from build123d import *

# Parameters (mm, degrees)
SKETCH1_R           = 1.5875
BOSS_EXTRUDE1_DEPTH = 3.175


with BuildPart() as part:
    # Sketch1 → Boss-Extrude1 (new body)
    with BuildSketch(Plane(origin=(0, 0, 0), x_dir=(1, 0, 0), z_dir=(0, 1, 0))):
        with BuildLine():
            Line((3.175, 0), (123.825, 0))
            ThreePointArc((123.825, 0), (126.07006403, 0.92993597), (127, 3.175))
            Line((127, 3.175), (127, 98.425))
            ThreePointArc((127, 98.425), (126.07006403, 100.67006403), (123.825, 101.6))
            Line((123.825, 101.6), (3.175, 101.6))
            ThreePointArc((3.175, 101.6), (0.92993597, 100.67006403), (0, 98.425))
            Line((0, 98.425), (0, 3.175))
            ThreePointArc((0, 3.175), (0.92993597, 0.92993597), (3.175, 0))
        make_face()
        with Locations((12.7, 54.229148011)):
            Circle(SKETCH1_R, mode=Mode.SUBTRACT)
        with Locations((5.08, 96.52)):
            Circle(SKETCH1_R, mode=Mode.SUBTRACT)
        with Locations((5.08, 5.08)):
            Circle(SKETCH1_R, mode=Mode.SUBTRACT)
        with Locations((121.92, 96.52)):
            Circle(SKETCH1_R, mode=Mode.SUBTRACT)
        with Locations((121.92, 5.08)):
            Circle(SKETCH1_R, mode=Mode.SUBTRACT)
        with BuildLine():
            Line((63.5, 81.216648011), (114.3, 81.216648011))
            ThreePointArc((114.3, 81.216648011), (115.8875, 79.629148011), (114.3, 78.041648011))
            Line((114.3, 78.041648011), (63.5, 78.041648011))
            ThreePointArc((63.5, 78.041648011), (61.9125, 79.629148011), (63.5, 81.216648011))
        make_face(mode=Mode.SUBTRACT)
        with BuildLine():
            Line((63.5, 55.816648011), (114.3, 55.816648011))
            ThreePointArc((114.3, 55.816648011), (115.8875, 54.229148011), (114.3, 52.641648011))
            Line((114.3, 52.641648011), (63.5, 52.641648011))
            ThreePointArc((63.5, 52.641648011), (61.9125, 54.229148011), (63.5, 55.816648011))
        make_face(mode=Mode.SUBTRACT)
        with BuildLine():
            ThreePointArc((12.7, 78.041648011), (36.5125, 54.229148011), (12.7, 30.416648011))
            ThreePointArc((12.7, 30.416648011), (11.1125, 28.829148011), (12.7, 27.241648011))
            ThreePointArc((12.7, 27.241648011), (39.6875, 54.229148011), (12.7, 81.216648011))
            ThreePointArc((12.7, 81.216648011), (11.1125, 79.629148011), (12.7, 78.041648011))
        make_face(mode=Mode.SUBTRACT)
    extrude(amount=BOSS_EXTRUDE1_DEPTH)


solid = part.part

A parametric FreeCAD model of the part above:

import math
import FreeCAD as App
import Part
import Sketcher
Q = App.Units.Quantity

doc = App.newDocument("Part")
body = doc.addObject("PartDesign::Body", "Body")

# Sketch on XZ plane
sketch1 = body.newObject("Sketcher::SketchObject", "Sketch")
sketch1.AttachmentSupport = (doc.getObject("XZ_Plane"), [""])
sketch1.MapMode = "FlatFace"
sketch1.addGeometry([
    Part.LineSegment(App.Vector(3.2, 0, 0), App.Vector(123.8, 0, 0)),  # 0
    Part.ArcOfCircle(Part.Circle(App.Vector(123.8, -3.2, 0), App.Vector(0, 0, 1), 3.2), math.radians(0), math.radians(90)),  # 1
    Part.LineSegment(App.Vector(127, -3.2, 0), App.Vector(127, -98.4, 0)),  # 2
    Part.ArcOfCircle(Part.Circle(App.Vector(123.8, -98.4, 0), App.Vector(0, 0, 1), 3.2), math.radians(-90), math.radians(0)),  # 3
    Part.LineSegment(App.Vector(123.8, -101.6, 0), App.Vector(3.2, -101.6, 0)),  # 4
    Part.ArcOfCircle(Part.Circle(App.Vector(3.2, -98.4, 0), App.Vector(0, 0, 1), 3.2), math.radians(-180), math.radians(-90)),  # 5
    Part.LineSegment(App.Vector(0, -98.4, 0), App.Vector(0, -3.2, 0)),  # 6
    Part.ArcOfCircle(Part.Circle(App.Vector(3.2, -3.2, 0), App.Vector(0, 0, 1), 3.2), math.radians(90), math.radians(180)),  # 7
    Part.Circle(App.Vector(5.1, -5.1, 0), App.Vector(0, 0, 1), 1.6),  # 8
    Part.Circle(App.Vector(121.9, -5.1, 0), App.Vector(0, 0, 1), 1.6),  # 9
    Part.Circle(App.Vector(12.7, -54.2, 0), App.Vector(0, 0, 1), 1.6),  # 10
    Part.ArcOfCircle(Part.Circle(App.Vector(12.7, -54.2, 0), App.Vector(0, 0, 1), 23.8), math.radians(-90), math.radians(90)),  # 11
    Part.ArcOfCircle(Part.Circle(App.Vector(12.7, -79.6, 0), App.Vector(0, 0, 1), 1.6), math.radians(90), math.radians(270)),  # 12
    Part.ArcOfCircle(Part.Circle(App.Vector(12.7, -54.2, 0), App.Vector(0, 0, 1), 27), math.radians(-90), math.radians(90)),  # 13
    Part.ArcOfCircle(Part.Circle(App.Vector(12.7, -28.8, 0), App.Vector(0, 0, 1), 1.6), math.radians(90), math.radians(270)),  # 14
    Part.Circle(App.Vector(5.1, -96.5, 0), App.Vector(0, 0, 1), 1.6),  # 15
    Part.ArcOfCircle(Part.Circle(App.Vector(63.5, -54.2, 0), App.Vector(0, 0, 1), 1.6), math.radians(90), math.radians(270)),  # 16
    Part.LineSegment(App.Vector(63.5, -55.8, 0), App.Vector(114.3, -55.8, 0)),  # 17
    Part.ArcOfCircle(Part.Circle(App.Vector(114.3, -54.2, 0), App.Vector(0, 0, 1), 1.6), math.radians(-90), math.radians(90)),  # 18
    Part.LineSegment(App.Vector(114.3, -52.6, 0), App.Vector(63.5, -52.6, 0)),  # 19
    Part.ArcOfCircle(Part.Circle(App.Vector(63.5, -79.6, 0), App.Vector(0, 0, 1), 1.6), math.radians(90), math.radians(270)),  # 20
    Part.LineSegment(App.Vector(63.5, -81.2, 0), App.Vector(114.3, -81.2, 0)),  # 21
    Part.ArcOfCircle(Part.Circle(App.Vector(114.3, -79.6, 0), App.Vector(0, 0, 1), 1.6), math.radians(-90), math.radians(90)),  # 22
    Part.LineSegment(App.Vector(114.3, -78, 0), App.Vector(63.5, -78, 0)),  # 23
    Part.Circle(App.Vector(121.9, -96.5, 0), App.Vector(0, 0, 1), 1.6),  # 24
], False)
sketch1.addConstraint([
    Sketcher.Constraint("Tangent", 0, 2, 1, 2),
    Sketcher.Constraint("Tangent", 1, 1, 2, 1),
    Sketcher.Constraint("Tangent", 2, 2, 3, 2),
    Sketcher.Constraint("Tangent", 3, 1, 4, 1),
    Sketcher.Constraint("Tangent", 4, 2, 5, 2),
    Sketcher.Constraint("Tangent", 5, 1, 6, 1),
    Sketcher.Constraint("Tangent", 6, 2, 7, 2),
    Sketcher.Constraint("Tangent", 7, 1, 0, 1),
    Sketcher.Constraint("Tangent", 11, 1, 12, 1),
    Sketcher.Constraint("Tangent", 12, 2, 13, 1),
    Sketcher.Constraint("Tangent", 13, 2, 14, 1),
    Sketcher.Constraint("Tangent", 14, 2, 11, 2),
    Sketcher.Constraint("Tangent", 16, 2, 17, 1),
    Sketcher.Constraint("Tangent", 17, 2, 18, 1),
    Sketcher.Constraint("Tangent", 18, 2, 19, 1),
    Sketcher.Constraint("Tangent", 19, 2, 16, 1),
    Sketcher.Constraint("Tangent", 20, 2, 21, 1),
    Sketcher.Constraint("Tangent", 21, 2, 22, 1),
    Sketcher.Constraint("Tangent", 22, 2, 23, 1),
    Sketcher.Constraint("Tangent", 23, 2, 20, 1),
    Sketcher.Constraint("Horizontal", 0),
    Sketcher.Constraint("Vertical", 2),
    Sketcher.Constraint("Horizontal", 4),
    Sketcher.Constraint("Vertical", 6),
    Sketcher.Constraint("Horizontal", 17),
    Sketcher.Constraint("Horizontal", 19),
    Sketcher.Constraint("Horizontal", 21),
    Sketcher.Constraint("Horizontal", 23),
    Sketcher.Constraint("Coincident", 11, 3, 10, 3),
    Sketcher.Constraint("Coincident", 13, 3, 10, 3),
    Sketcher.Constraint("Equal", 1, 3),
    Sketcher.Constraint("Equal", 3, 5),
    Sketcher.Constraint("Equal", 5, 7),
    Sketcher.Constraint("Equal", 8, 9),
    Sketcher.Constraint("Equal", 9, 10),
    Sketcher.Constraint("Equal", 10, 12),
    Sketcher.Constraint("Equal", 14, 15),
    Sketcher.Constraint("Equal", 15, 16),
    Sketcher.Constraint("Equal", 18, 20),
    Sketcher.Constraint("Equal", 22, 24),
    Sketcher.Constraint("PointOnObject", 0, 2, -1),
    Sketcher.Constraint("PointOnObject", 5, 1, -2),
    Sketcher.Constraint("Horizontal", 8, 3, 9, 3),
    Sketcher.Constraint("Horizontal", 13, 3, 16, 3),
    Sketcher.Constraint("Horizontal", 12, 3, 20, 3),
    Sketcher.Constraint("Horizontal", 15, 3, 24, 3),
    Sketcher.Constraint("Vertical", 11, 3, 12, 3),
    Sketcher.Constraint("Vertical", 13, 3, 14, 3),
    Sketcher.Constraint("Vertical", 8, 3, 15, 3),
    Sketcher.Constraint("Vertical", 16, 3, 20, 3),
    Sketcher.Constraint("Vertical", 18, 3, 22, 3),
    Sketcher.Constraint("Vertical", 9, 3, 24, 3),
    Sketcher.Constraint("DistanceX", 17, 1, 17, 2, Q("2 in")),
    Sketcher.Constraint("Diameter", 8, Q("0.125 in")),
    Sketcher.Constraint("DistanceX", -1, 1, 1, 1, Q("5 in")),
    Sketcher.Constraint("DistanceY", 3, 1, -1, 1, Q("4 in")),
    Sketcher.Constraint("Radius", 1, Q("0.125 in")),
    Sketcher.Constraint("Radius", 11, Q("0.9375 in")),
    Sketcher.Constraint("DistanceX", 10, 3, 16, 3, Q("2 in")),
    Sketcher.Constraint("DistanceX", -1, 1, 8, 3, Q("0.2 in")),
    Sketcher.Constraint("DistanceY", 8, 3, -1, 1, Q("0.2 in")),
    Sketcher.Constraint("DistanceX", -1, 1, 9, 3, Q("4.8 in")),
    Sketcher.Constraint("DistanceX", -1, 1, 10, 3, Q("0.5 in")),
    Sketcher.Constraint("DistanceY", 15, 3, -1, 1, Q("3.8 in")),
    Sketcher.Constraint("DistanceY", 10, 3, -1, 1, 54.229148),
])
pad1 = body.newObject("PartDesign::Pad", "Pad")
pad1.Profile = sketch1
pad1.Length = Q("0.125 in")
pad1.Reversed = True

doc.recompute()
